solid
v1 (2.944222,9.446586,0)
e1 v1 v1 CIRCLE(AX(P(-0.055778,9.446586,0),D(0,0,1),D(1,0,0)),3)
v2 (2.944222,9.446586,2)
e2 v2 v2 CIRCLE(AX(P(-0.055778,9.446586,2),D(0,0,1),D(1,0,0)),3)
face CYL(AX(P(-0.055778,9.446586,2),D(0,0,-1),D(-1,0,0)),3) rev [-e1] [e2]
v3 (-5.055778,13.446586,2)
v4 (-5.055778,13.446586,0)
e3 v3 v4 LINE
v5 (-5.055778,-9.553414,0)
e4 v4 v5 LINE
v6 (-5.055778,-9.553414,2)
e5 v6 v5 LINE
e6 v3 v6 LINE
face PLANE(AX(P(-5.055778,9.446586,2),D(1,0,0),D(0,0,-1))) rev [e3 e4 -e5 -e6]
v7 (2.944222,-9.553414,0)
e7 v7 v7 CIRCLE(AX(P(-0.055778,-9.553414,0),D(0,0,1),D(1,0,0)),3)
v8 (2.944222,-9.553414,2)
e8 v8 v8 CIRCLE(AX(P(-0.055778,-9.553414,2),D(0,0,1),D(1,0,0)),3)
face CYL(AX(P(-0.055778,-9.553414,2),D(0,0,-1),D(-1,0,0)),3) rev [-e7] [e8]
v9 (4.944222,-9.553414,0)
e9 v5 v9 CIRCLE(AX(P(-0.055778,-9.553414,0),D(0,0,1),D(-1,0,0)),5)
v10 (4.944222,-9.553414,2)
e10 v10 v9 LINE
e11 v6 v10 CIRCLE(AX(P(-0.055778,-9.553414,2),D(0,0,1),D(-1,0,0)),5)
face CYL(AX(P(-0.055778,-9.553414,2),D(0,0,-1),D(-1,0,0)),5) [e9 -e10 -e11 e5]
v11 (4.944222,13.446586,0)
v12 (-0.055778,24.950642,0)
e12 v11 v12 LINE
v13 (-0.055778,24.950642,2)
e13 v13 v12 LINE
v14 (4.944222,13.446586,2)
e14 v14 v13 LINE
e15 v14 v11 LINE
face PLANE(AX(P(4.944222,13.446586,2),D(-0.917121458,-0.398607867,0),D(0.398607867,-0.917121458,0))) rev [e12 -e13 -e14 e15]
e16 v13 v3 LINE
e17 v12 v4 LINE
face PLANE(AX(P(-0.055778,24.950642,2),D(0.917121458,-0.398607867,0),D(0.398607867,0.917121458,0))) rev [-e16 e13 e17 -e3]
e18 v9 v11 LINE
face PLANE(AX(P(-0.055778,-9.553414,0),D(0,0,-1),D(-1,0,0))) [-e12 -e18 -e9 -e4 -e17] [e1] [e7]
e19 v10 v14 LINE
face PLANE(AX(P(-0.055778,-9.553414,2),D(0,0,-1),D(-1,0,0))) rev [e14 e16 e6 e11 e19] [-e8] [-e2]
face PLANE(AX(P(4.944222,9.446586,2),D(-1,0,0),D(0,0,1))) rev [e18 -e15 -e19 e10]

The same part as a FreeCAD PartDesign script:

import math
import FreeCAD as App
import Part
import Sketcher
Q = App.Units.Quantity

doc = App.newDocument("Part")
body = doc.addObject("PartDesign::Body", "Body")

sketch1 = doc.addObject("Sketcher::SketchObject", "Sketch")
body.addObject(sketch1)
sketch1.AttachmentSupport = (doc.XY_Plane, [""])
sketch1.MapMode = "FlatFace"
sketch1.addGeometry([
    Part.ArcOfCircle(Part.Circle(App.Vector(-0.1, -9.6, 0), App.Vector(0, 0, 1), 5), math.radians(180), math.radians(360)),
    Part.LineSegment(App.Vector(4.9, -9.6, 0), App.Vector(4.9, 13.4, 0)),
    Part.LineSegment(App.Vector(4.9, 13.4, 0), App.Vector(-0.1, 25, 0)),
    Part.LineSegment(App.Vector(-0.1, 25, 0), App.Vector(-5.1, 13.4, 0)),
    Part.LineSegment(App.Vector(-5.1, 13.4, 0), App.Vector(-5.1, -9.6, 0)),
    Part.Circle(App.Vector(-0.1, -9.6, 0), App.Vector(0, 0, 1), 3),
    Part.Circle(App.Vector(-0.1, 9.4, 0), App.Vector(0, 0, 1), 3),
], False)
sketch1.addConstraint([
    Sketcher.Constraint("Tangent", 0, 2, 1, 1),
    Sketcher.Constraint("Coincident", 1, 2, 2, 1),
    Sketcher.Constraint("Coincident", 2, 2, 3, 1),
    Sketcher.Constraint("Coincident", 3, 2, 4, 1),
    Sketcher.Constraint("Tangent", 4, 2, 0, 1),
    Sketcher.Constraint("Vertical", 1),
    Sketcher.Constraint("Vertical", 4),
    Sketcher.Constraint("Coincident", 5, 3, 0, 3),
    Sketcher.Constraint("Equal", 5, 6),
    Sketcher.Constraint("Horizontal", 1, 2, 3, 2),
    Sketcher.Constraint("Vertical", 5, 3, 6, 3),
    Sketcher.Constraint("Vertical", 6, 3, 2, 2),
    Sketcher.Constraint("Diameter", 5, Q("6 mm")),
    Sketcher.Constraint("Radius", 0, Q("5 mm")),
    Sketcher.Constraint("DistanceY", 1, 1, 1, 2, Q("23 mm")),
    Sketcher.Constraint("DistanceY", 0, 3, 6, 3, Q("19 mm")),
    Sketcher.Constraint("DistanceY", -1, 1, 2, 2, Q("24.950642 mm")),
    Sketcher.Constraint("Distance", 2, Q("12.543656 mm")),
    Sketcher.Constraint("DistanceX", 0, 3, -1, 1, Q("0.055778 mm")),
])
pad1 = doc.addObject("PartDesign::Pad", "Pad")
body.addObject(pad1)
pad1.Profile = sketch1
pad1.Length = 2

doc.recompute()
